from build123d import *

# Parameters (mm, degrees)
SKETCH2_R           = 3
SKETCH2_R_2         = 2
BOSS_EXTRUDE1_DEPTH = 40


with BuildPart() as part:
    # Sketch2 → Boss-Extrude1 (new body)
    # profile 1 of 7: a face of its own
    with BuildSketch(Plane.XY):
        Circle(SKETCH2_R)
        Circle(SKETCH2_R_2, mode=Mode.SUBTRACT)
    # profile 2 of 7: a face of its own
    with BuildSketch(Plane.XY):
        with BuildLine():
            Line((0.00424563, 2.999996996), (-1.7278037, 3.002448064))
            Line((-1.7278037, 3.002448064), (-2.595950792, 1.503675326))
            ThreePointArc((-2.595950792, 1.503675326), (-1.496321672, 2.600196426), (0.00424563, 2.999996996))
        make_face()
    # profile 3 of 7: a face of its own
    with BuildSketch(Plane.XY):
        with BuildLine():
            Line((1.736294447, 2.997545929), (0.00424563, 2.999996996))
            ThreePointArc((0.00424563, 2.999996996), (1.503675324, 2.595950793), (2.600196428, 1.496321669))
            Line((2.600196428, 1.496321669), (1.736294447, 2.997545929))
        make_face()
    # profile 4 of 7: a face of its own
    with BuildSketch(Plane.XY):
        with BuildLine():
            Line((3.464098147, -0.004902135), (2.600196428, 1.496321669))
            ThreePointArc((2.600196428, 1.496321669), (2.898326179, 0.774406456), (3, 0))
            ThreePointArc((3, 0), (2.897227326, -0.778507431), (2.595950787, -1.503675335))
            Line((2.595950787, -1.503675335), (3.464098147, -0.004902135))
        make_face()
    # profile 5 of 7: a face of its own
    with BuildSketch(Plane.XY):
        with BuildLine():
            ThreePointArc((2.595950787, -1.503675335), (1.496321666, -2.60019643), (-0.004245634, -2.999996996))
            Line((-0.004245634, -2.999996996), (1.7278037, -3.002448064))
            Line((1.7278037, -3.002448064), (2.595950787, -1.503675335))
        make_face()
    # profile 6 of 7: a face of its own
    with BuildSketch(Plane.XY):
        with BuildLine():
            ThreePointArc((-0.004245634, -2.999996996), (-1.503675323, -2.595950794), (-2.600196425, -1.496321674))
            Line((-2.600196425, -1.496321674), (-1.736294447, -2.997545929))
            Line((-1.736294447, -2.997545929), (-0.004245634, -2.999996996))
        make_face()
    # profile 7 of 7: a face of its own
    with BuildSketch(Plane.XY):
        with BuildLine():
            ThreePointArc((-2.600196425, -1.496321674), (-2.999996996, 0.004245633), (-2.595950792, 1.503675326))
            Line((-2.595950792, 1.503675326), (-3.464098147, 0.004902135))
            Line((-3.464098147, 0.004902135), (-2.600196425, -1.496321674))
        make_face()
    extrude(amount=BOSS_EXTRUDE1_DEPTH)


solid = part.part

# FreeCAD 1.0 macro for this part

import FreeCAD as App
import Part
import Sketcher
Q = App.Units.Quantity

doc = App.newDocument("Part")
params = doc.addObject("Spreadsheet::Sheet", "Params")
for row, (alias, value) in enumerate([
    ("sketch1_diameter", "4 mm"),
    ("pad1_length", "40 mm"),
], start=1):
    params.set(f"A{row}", alias)
    params.set(f"B{row}", "=" + value)
    params.setAlias(f"B{row}", alias)

body = doc.addObject("PartDesign::Body", "Body")

# Sketch on XY plane
sketch1 = body.newObject("Sketcher::SketchObject", "Sketch")
sketch1.AttachmentSupport = (doc.getObject("XY_Plane"), [""])
sketch1.MapMode = "FlatFace"
sketch1.addGeometry(Part.LineSegment(App.Vector(3.5, 0, 0), App.Vector(2.6, 1.5, 0)), False)
sketch1.addGeometry(Part.LineSegment(App.Vector(2.6, 1.5, 0), App.Vector(1.7, 3, 0)), False)
sketch1.addGeometry(Part.LineSegment(App.Vector(1.7, 3, 0), App.Vector(0, 3, 0)), False)
sketch1.addGeometry(Part.LineSegment(App.Vector(0, 3, 0), App.Vector(-1.7, 3, 0)), False)
sketch1.addGeometry(Part.LineSegment(App.Vector(-1.7, 3, 0), App.Vector(-2.6, 1.5, 0)), False)
sketch1.addGeometry(Part.LineSegment(App.Vector(-2.6, 1.5, 0), App.Vector(-3.5, 0, 0)), False)
sketch1.addGeometry(Part.LineSegment(App.Vector(-3.5, 0, 0), App.Vector(-2.6, -1.5, 0)), False)
sketch1.addGeometry(Part.LineSegment(App.Vector(-2.6, -1.5, 0), App.Vector(-1.7, -3, 0)), False)
sketch1.addGeometry(Part.LineSegment(App.Vector(-1.7, -3, 0), App.Vector(0, -3, 0)), False)
sketch1.addGeometry(Part.LineSegment(App.Vector(0, -3, 0), App.Vector(1.7, -3, 0)), False)
sketch1.addGeometry(Part.LineSegment(App.Vector(1.7, -3, 0), App.Vector(2.6, -1.5, 0)), False)
sketch1.addGeometry(Part.LineSegment(App.Vector(2.6, -1.5, 0), App.Vector(3.5, 0, 0)), False)
sketch1.addGeometry(Part.Circle(App.Vector(0, 0, 0), App.Vector(0, 0, 1), 2), False)
sketch1.addConstraint(Sketcher.Constraint("Coincident", 0, 2, 1, 1))
sketch1.addConstraint(Sketcher.Constraint("Coincident", 1, 2, 2, 1))
sketch1.addConstraint(Sketcher.Constraint("Coincident", 2, 2, 3, 1))
sketch1.addConstraint(Sketcher.Constraint("Coincident", 3, 2, 4, 1))
sketch1.addConstraint(Sketcher.Constraint("Coincident", 4, 2, 5, 1))
sketch1.addConstraint(Sketcher.Constraint("Coincident", 5, 2, 6, 1))
sketch1.addConstraint(Sketcher.Constraint("Coincident", 6, 2, 7, 1))
sketch1.addConstraint(Sketcher.Constraint("Coincident", 7, 2, 8, 1))
sketch1.addConstraint(Sketcher.Constraint("Coincident", 8, 2, 9, 1))
sketch1.addConstraint(Sketcher.Constraint("Coincident", 9, 2, 10, 1))
sketch1.addConstraint(Sketcher.Constraint("Coincident", 10, 2, 11, 1))
sketch1.addConstraint(Sketcher.Constraint("Coincident", 11, 2, 0, 1))
sketch1.addConstraint(Sketcher.Constraint("Coincident", 12, 3, -1, 1))
sketch1.addConstraint(Sketcher.Constraint("Symmetric", 0, 2, 6, 2, -1, 1))
sketch1.addConstraint(Sketcher.Constraint("Symmetric", 1, 2, 7, 2, -1, 1))
sketch1.addConstraint(Sketcher.Constraint("Symmetric", 2, 2, 8, 2, -1, 1))
sketch1.addConstraint(Sketcher.Constraint("Symmetric", 3, 2, 9, 2, -1, 1))
sketch1.addConstraint(Sketcher.Constraint("Symmetric", 4, 2, 10, 2, -1, 1))
sketch1.addConstraint(Sketcher.Constraint("Symmetric", 5, 2, 11, 2, -1, 1))
sketch1.addConstraint(Sketcher.Constraint("Parallel", 0, 1))
sketch1.addConstraint(Sketcher.Constraint("Parallel", 2, 3))
sketch1.addConstraint(Sketcher.Constraint("Parallel", 4, 5))
sketch1.addConstraint(Sketcher.Constraint("Equal", 0, 1))
sketch1.addConstraint(Sketcher.Constraint("Equal", 1, 2))
sketch1.addConstraint(Sketcher.Constraint("Equal", 2, 3))
sketch1.addConstraint(Sketcher.Constraint("Equal", 3, 4))
sketch1.addConstraint(Sketcher.Constraint("Equal", 4, 5))
sketch1.addConstraint(Sketcher.Constraint("Diameter", 12, Q("4 mm")))
sketch1.addConstraint(Sketcher.Constraint("DistanceX", 3, 2, 0, 2, Q("4.328 mm")))
sketch1.addConstraint(Sketcher.Constraint("DistanceX", 5, 2, -1, 1, Q("3.464098 mm")))
sketch1.addConstraint(Sketcher.Constraint("DistanceX", 1, 2, 0, 2, Q("0.863902 mm")))
sketch1.addConstraint(Sketcher.Constraint("DistanceY", 8, 2, 5, 2, Q("3.004899 mm")))
sketch1.setExpression("Constraints[27]", "Params.sketch1_diameter")
pad1 = body.newObject("PartDesign::Pad", "Pad")
pad1.Profile = sketch1
pad1.setExpression("Length", "Params.pad1_length")

doc.recompute()
